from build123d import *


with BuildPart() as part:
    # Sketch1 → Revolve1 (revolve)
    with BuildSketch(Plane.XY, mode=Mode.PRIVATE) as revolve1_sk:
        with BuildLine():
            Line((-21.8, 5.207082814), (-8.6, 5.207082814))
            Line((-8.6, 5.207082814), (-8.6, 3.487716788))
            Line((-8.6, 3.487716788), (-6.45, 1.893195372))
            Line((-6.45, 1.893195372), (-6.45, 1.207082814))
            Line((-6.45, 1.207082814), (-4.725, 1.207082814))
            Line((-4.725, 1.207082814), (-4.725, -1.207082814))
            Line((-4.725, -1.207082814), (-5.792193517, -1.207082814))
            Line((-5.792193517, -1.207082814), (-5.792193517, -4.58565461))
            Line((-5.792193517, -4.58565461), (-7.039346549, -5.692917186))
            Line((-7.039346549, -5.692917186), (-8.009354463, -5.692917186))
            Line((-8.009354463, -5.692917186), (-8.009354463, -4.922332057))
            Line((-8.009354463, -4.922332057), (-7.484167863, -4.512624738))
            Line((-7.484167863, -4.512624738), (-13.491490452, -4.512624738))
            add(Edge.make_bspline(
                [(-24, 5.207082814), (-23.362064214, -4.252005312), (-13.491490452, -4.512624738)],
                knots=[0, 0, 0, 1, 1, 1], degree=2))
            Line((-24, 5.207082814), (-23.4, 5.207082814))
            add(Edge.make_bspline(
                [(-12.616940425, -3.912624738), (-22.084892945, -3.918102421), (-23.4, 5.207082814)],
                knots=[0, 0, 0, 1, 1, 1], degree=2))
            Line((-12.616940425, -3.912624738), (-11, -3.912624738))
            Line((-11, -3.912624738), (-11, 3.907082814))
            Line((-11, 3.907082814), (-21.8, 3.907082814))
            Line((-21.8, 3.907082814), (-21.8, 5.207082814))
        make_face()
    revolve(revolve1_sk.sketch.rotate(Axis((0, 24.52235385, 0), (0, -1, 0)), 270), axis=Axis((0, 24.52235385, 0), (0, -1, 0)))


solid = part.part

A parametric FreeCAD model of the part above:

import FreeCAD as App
import Part
import Sketcher
Q = App.Units.Quantity

doc = App.newDocument("Part")
body = doc.addObject("PartDesign::Body", "Body")

# Sketch on XY plane
sketch1 = body.newObject("Sketcher::SketchObject", "Sketch")
sketch1.AttachmentSupport = (doc.getObject("XY_Plane"), [""])
sketch1.MapMode = "FlatFace"
sketch1.addGeometry(Part.LineSegment(App.Vector(-8.6, 5.207083, 0), App.Vector(-21.8, 5.207083, 0)), False)
sketch1.addGeometry(Part.LineSegment(App.Vector(-21.8, 5.207083, 0), App.Vector(-21.8, 3.907083, 0)), False)
sketch1.addGeometry(Part.LineSegment(App.Vector(-21.8, 3.907083, 0), App.Vector(-11, 3.907083, 0)), False)
sketch1.addGeometry(Part.LineSegment(App.Vector(-11, 3.907083, 0), App.Vector(-11, -3.912625, 0)), False)
sketch1.addGeometry(Part.LineSegment(App.Vector(-11, -3.912625, 0), App.Vector(-12.61694, -3.912625, 0)), False)
sketch1.addGeometry(Part.BSplineCurve([App.Vector(-12.61694, -3.912625, 0), App.Vector(-22.084893, -3.918102, 0), App.Vector(-23.4, 5.207083, 0)], [3, 3], [0, 1], False, 2, [1, 1, 1], False), False)
sketch1.addGeometry(Part.LineSegment(App.Vector(-23.4, 5.207083, 0), App.Vector(-24, 5.207083, 0)), False)
sketch1.addGeometry(Part.BSplineCurve([App.Vector(-24, 5.207083, 0), App.Vector(-23.362064, -4.252005, 0), App.Vector(-13.49149, -4.512625, 0)], [3, 3], [0, 1], False, 2, [1, 1, 1], False), False)
sketch1.addGeometry(Part.LineSegment(App.Vector(-13.49149, -4.512625, 0), App.Vector(-7.484168, -4.512625, 0)), False)
sketch1.addGeometry(Part.LineSegment(App.Vector(-7.484168, -4.512625, 0), App.Vector(-8.009354, -4.922332, 0)), False)
sketch1.addGeometry(Part.LineSegment(App.Vector(-8.009354, -4.922332, 0), App.Vector(-8.009354, -5.692917, 0)), False)
sketch1.addGeometry(Part.LineSegment(App.Vector(-8.009354, -5.692917, 0), App.Vector(-7.039347, -5.692917, 0)), False)
sketch1.addGeometry(Part.LineSegment(App.Vector(-7.039347, -5.692917, 0), App.Vector(-5.792194, -4.585655, 0)), False)
sketch1.addGeometry(Part.LineSegment(App.Vector(-5.792194, -4.585655, 0), App.Vector(-5.792194, -1.207083, 0)), False)
sketch1.addGeometry(Part.LineSegment(App.Vector(-5.792194, -1.207083, 0), App.Vector(-4.725, -1.207083, 0)), False)
sketch1.addGeometry(Part.LineSegment(App.Vector(-4.725, -1.207083, 0), App.Vector(-4.725, 1.207083, 0)), False)
sketch1.addGeometry(Part.LineSegment(App.Vector(-4.725, 1.207083, 0), App.Vector(-6.45, 1.207083, 0)), False)
sketch1.addGeometry(Part.LineSegment(App.Vector(-6.45, 1.207083, 0), App.Vector(-6.45, 1.893195, 0)), False)
sketch1.addGeometry(Part.LineSegment(App.Vector(-6.45, 1.893195, 0), App.Vector(-8.6, 3.487717, 0)), False)
sketch1.addGeometry(Part.LineSegment(App.Vector(-8.6, 3.487717, 0), App.Vector(-8.6, 5.207083, 0)), False)
sketch1.addConstraint(Sketcher.Constraint("Block", 5))
sketch1.addConstraint(Sketcher.Constraint("Block", 7))
sketch1.addConstraint(Sketcher.Constraint("Coincident", 0, 2, 1, 1))
sketch1.addConstraint(Sketcher.Constraint("Coincident", 1, 2, 2, 1))
sketch1.addConstraint(Sketcher.Constraint("Coincident", 2, 2, 3, 1))
sketch1.addConstraint(Sketcher.Constraint("Coincident", 3, 2, 4, 1))
sketch1.addConstraint(Sketcher.Constraint("Coincident", 4, 2, 5, 1))
sketch1.addConstraint(Sketcher.Constraint("Coincident", 5, 2, 6, 1))
sketch1.addConstraint(Sketcher.Constraint("Coincident", 6, 2, 7, 1))
sketch1.addConstraint(Sketcher.Constraint("Coincident", 7, 2, 8, 1))
sketch1.addConstraint(Sketcher.Constraint("Coincident", 8, 2, 9, 1))
sketch1.addConstraint(Sketcher.Constraint("Coincident", 9, 2, 10, 1))
sketch1.addConstraint(Sketcher.Constraint("Coincident", 10, 2, 11, 1))
sketch1.addConstraint(Sketcher.Constraint("Coincident", 11, 2, 12, 1))
sketch1.addConstraint(Sketcher.Constraint("Coincident", 12, 2, 13, 1))
sketch1.addConstraint(Sketcher.Constraint("Coincident", 13, 2, 14, 1))
sketch1.addConstraint(Sketcher.Constraint("Coincident", 14, 2, 15, 1))
sketch1.addConstraint(Sketcher.Constraint("Coincident", 15, 2, 16, 1))
sketch1.addConstraint(Sketcher.Constraint("Coincident", 16, 2, 17, 1))
sketch1.addConstraint(Sketcher.Constraint("Coincident", 17, 2, 18, 1))
sketch1.addConstraint(Sketcher.Constraint("Coincident", 18, 2, 19, 1))
sketch1.addConstraint(Sketcher.Constraint("Coincident", 19, 2, 0, 1))
sketch1.addConstraint(Sketcher.Constraint("Horizontal", 0))
sketch1.addConstraint(Sketcher.Constraint("Vertical", 1))
sketch1.addConstraint(Sketcher.Constraint("Horizontal", 2))
sketch1.addConstraint(Sketcher.Constraint("Vertical", 3))
sketch1.addConstraint(Sketcher.Constraint("Horizontal", 4))
sketch1.addConstraint(Sketcher.Constraint("Horizontal", 8))
sketch1.addConstraint(Sketcher.Constraint("Vertical", 10))
sketch1.addConstraint(Sketcher.Constraint("Horizontal", 11))
sketch1.addConstraint(Sketcher.Constraint("Vertical", 13))
sketch1.addConstraint(Sketcher.Constraint("Horizontal", 14))
sketch1.addConstraint(Sketcher.Constraint("Vertical", 15))
sketch1.addConstraint(Sketcher.Constraint("Horizontal", 16))
sketch1.addConstraint(Sketcher.Constraint("Vertical", 17))
sketch1.addConstraint(Sketcher.Constraint("Vertical", 19))
sketch1.addConstraint(Sketcher.Constraint("Horizontal", 0, 2, 6, 2))
sketch1.addConstraint(Sketcher.Constraint("DistanceX", 0, 2, 0, 1, Q("13.2 mm")))
sketch1.addConstraint(Sketcher.Constraint("DistanceX", 2, 1, 2, 2, Q("10.8 mm")))
sketch1.addConstraint(Sketcher.Constraint("DistanceY", 1, 2, 1, 1, Q("1.3 mm")))
sketch1.addConstraint(Sketcher.Constraint("DistanceX", 2, 2, -1, 1, Q("11 mm")))
sketch1.addConstraint(Sketcher.Constraint("DistanceY", 16, 2, 19, 2, Q("4 mm")))
sketch1.addConstraint(Sketcher.Constraint("DistanceY", 10, 2, 2, 2, Q("9.6 mm")))
sketch1.addConstraint(Sketcher.Constraint("DistanceX", 16, 2, 16, 1, Q("1.725 mm")))
sketch1.addConstraint(Sketcher.Constraint("DistanceX", 16, 2, -1, 1, Q("6.45 mm")))
sketch1.addConstraint(Sketcher.Constraint("DistanceY", 13, 1, 13, 2, Q("3.378572 mm")))
sketch1.addConstraint(Sketcher.Constraint("DistanceY", 13, 2, 18, 2, Q("4.6948 mm")))
sketch1.addConstraint(Sketcher.Constraint("Distance", 12, Q("1.667759 mm")))
sketch1.addConstraint(Sketcher.Constraint("Distance", 18, Q("2.676751 mm")))
sketch1.addConstraint(Sketcher.Constraint("DistanceX", 8, 1, 8, 2, Q("6.007323 mm")))
sketch1.addConstraint(Sketcher.Constraint("DistanceX", 11, 1, 11, 2, Q("0.970008 mm")))
sketch1.addConstraint(Sketcher.Constraint("DistanceX", 14, 1, 14, 2, Q("1.067194 mm")))
sketch1.addConstraint(Sketcher.Constraint("DistanceY", 10, 2, 10, 1, Q("0.770585 mm")))
sketch1.addConstraint(Sketcher.Constraint("DistanceY", 15, 1, 15, 2, Q("2.414166 mm")))
revolution = body.newObject("PartDesign::Revolution", "Revolution")
revolution.Profile = sketch1
revolution.ReferenceAxis = (sketch1, ["V_Axis"])
revolution.Angle = 360

doc.recompute()
